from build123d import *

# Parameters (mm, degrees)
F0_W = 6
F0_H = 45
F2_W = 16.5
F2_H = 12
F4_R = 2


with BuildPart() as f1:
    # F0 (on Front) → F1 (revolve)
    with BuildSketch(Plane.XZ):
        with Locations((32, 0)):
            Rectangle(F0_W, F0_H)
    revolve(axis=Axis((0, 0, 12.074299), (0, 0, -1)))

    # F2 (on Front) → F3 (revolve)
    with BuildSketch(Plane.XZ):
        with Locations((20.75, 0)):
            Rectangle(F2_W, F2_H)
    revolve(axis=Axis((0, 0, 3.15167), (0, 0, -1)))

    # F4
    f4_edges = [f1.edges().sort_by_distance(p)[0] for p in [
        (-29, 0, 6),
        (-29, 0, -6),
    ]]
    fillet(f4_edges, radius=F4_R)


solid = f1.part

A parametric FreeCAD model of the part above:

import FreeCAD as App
import Part
import Sketcher
Q = App.Units.Quantity


def edges_at(feature, points):
    """Names of the edges that pass closest to the given points."""
    edges = feature.Shape.Edges
    near = lambda p: min(range(len(edges)), key=lambda i: edges[i].distToShape(Part.Vertex(*p))[0])
    return sorted({f"Edge{near(p) + 1}" for p in points})


def add_polygon(sketch, points):
    """Adds a closed chain of lines whose ends are joined by coincident constraints."""
    first, n = sketch.GeometryCount, len(points)
    for a, b in zip(points, points[1:] + points[:1]):
        sketch.addGeometry(Part.LineSegment(App.Vector(*a, 0), App.Vector(*b, 0)), False)
    for i in range(n):
        sketch.addConstraint(Sketcher.Constraint("Coincident", first + i, 2, first + (i + 1) % n, 1))

doc = App.newDocument("Part")
body = doc.addObject("PartDesign::Body", "Body")

# Sketch on XZ plane
sketch1 = doc.addObject("Sketcher::SketchObject", "Sketch")
body.addObject(sketch1)
sketch1.AttachmentSupport = (doc.XZ_Plane, [""])
sketch1.MapMode = "FlatFace"
add_polygon(sketch1, [(29, 22), (29, -22), (35, -22), (35, 22)])  # lines 0-3
sketch1.addConstraint([
    Sketcher.Constraint("Vertical", 0),
    Sketcher.Constraint("Horizontal", 1),
    Sketcher.Constraint("Vertical", 2),
    Sketcher.Constraint("Horizontal", 3),
    Sketcher.Constraint("DistanceX", 1, 1, 1, 2, Q("6 mm")),
    Sketcher.Constraint("DistanceY", 0, 2, 0, 1, Q("45 mm")),
    Sketcher.Constraint("DistanceX", -1, 1, 0, 2, Q("29 mm")),
    Sketcher.Constraint("DistanceY", 0, 2, -1, 1, Q("22.5 mm")),
])
revolution = doc.addObject("PartDesign::Revolution", "Revolution")
body.addObject(revolution)
revolution.Profile = sketch1
revolution.ReferenceAxis = (sketch1, ["V_Axis"])
revolution.Angle = 360

# Sketch on XZ plane
sketch2 = doc.addObject("Sketcher::SketchObject", "Sketch001")
body.addObject(sketch2)
sketch2.AttachmentSupport = (doc.XZ_Plane, [""])
sketch2.MapMode = "FlatFace"
add_polygon(sketch2, [(12, 6), (12, -6), (29, -6), (29, 6)])  # lines 0-3
sketch2.addConstraint([
    Sketcher.Constraint("Vertical", 0),
    Sketcher.Constraint("Horizontal", 1),
    Sketcher.Constraint("Vertical", 2),
    Sketcher.Constraint("Horizontal", 3),
    Sketcher.Constraint("DistanceY", 0, 2, 0, 1, Q("12 mm")),
    Sketcher.Constraint("DistanceX", 1, 1, 1, 2, Q("16.5 mm")),
    Sketcher.Constraint("DistanceY", 0, 2, -1, 1, Q("6 mm")),
    Sketcher.Constraint("DistanceX", -1, 1, 1, 2, Q("29 mm")),
])
revolution2 = doc.addObject("PartDesign::Revolution", "Revolution001")
body.addObject(revolution2)
revolution2.Profile = sketch2
revolution2.ReferenceAxis = (sketch2, ["V_Axis"])
revolution2.Angle = 360
doc.recompute()

fillet = doc.addObject("PartDesign::Fillet", "Fillet")
body.addObject(fillet)
fillet.Base = (revolution2, edges_at(revolution2, [(-29, 0, 6), (-29, 0, -6)]))
fillet.Radius = 2

doc.recompute()
